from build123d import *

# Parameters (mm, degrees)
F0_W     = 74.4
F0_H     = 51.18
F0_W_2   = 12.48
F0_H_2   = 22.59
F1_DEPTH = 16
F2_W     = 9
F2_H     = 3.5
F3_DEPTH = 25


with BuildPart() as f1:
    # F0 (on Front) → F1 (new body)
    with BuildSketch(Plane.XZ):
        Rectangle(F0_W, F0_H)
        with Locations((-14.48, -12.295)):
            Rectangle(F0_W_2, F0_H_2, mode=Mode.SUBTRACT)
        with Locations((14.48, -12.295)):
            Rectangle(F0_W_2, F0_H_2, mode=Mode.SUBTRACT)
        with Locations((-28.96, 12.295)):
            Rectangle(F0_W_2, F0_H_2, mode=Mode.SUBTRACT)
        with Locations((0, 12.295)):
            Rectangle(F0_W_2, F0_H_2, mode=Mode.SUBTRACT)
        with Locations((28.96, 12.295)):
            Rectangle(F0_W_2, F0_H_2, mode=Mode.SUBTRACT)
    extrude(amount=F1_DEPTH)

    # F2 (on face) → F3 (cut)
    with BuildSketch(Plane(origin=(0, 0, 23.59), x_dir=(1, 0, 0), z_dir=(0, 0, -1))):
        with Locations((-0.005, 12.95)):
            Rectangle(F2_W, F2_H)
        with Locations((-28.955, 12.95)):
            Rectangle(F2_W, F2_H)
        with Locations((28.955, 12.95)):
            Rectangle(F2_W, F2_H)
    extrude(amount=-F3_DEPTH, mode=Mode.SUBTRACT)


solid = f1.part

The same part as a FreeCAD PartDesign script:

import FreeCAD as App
import Part
import Sketcher
from FreeCAD import Vector
Q = App.Units.Quantity


def add_polygon(sketch, points):
    """Adds a closed chain of lines whose ends are joined by coincident constraints."""
    first, n = sketch.GeometryCount, len(points)
    for a, b in zip(points, points[1:] + points[:1]):
        sketch.addGeometry(Part.LineSegment(App.Vector(*a, 0), App.Vector(*b, 0)), False)
    for i in range(n):
        sketch.addConstraint(Sketcher.Constraint("Coincident", first + i, 2, first + (i + 1) % n, 1))

doc = App.newDocument("Part")
body = doc.addObject("PartDesign::Body", "Body")

sketch1 = doc.addObject("Sketcher::SketchObject", "Sketch")
body.addObject(sketch1)
sketch1.AttachmentSupport = (doc.XZ_Plane, [""])
sketch1.MapMode = "FlatFace"
add_polygon(sketch1, [(-37.2, 25.59), (-37.2, -25.59), (37.2, -25.59), (37.2, 25.59)])
add_polygon(sketch1, [(-8.24, -23.59), (-20.72, -23.59), (-20.72, -1), (-8.24, -1)])
add_polygon(sketch1, [(20.72, -23.59), (8.24, -23.59), (8.24, -1), (20.72, -1)])
add_polygon(sketch1, [(-22.72, 1), (-35.2, 1), (-35.2, 23.59), (-22.72, 23.59)])
add_polygon(sketch1, [(6.24, 1), (-6.24, 1), (-6.24, 23.59), (6.24, 23.59)])
add_polygon(sketch1, [(35.2, 1), (22.72, 1), (22.72, 23.59), (35.2, 23.59)])
sketch1.addConstraint(Sketcher.Constraint("Vertical", 0))
sketch1.addConstraint(Sketcher.Constraint("Horizontal", 1))
sketch1.addConstraint(Sketcher.Constraint("Vertical", 2))
sketch1.addConstraint(Sketcher.Constraint("Horizontal", 3))
sketch1.addConstraint(Sketcher.Constraint("Horizontal", 4))
sketch1.addConstraint(Sketcher.Constraint("Vertical", 5))
sketch1.addConstraint(Sketcher.Constraint("Horizontal", 6))
sketch1.addConstraint(Sketcher.Constraint("Vertical", 7))
sketch1.addConstraint(Sketcher.Constraint("Horizontal", 8))
sketch1.addConstraint(Sketcher.Constraint("Vertical", 9))
sketch1.addConstraint(Sketcher.Constraint("Horizontal", 10))
sketch1.addConstraint(Sketcher.Constraint("Vertical", 11))
sketch1.addConstraint(Sketcher.Constraint("Horizontal", 12))
sketch1.addConstraint(Sketcher.Constraint("Vertical", 13))
sketch1.addConstraint(Sketcher.Constraint("Horizontal", 14))
sketch1.addConstraint(Sketcher.Constraint("Vertical", 15))
sketch1.addConstraint(Sketcher.Constraint("Horizontal", 16))
sketch1.addConstraint(Sketcher.Constraint("Vertical", 17))
sketch1.addConstraint(Sketcher.Constraint("Horizontal", 18))
sketch1.addConstraint(Sketcher.Constraint("Vertical", 19))
sketch1.addConstraint(Sketcher.Constraint("Horizontal", 20))
sketch1.addConstraint(Sketcher.Constraint("Vertical", 21))
sketch1.addConstraint(Sketcher.Constraint("Horizontal", 22))
sketch1.addConstraint(Sketcher.Constraint("Vertical", 23))
sketch1.addConstraint(Sketcher.Constraint("Symmetric", 0, 2, 2, 2, -1, 1))
sketch1.addConstraint(Sketcher.Constraint("Symmetric", 7, 2, 8, 2, -2))
sketch1.addConstraint(Sketcher.Constraint("Symmetric", 5, 2, 10, 2, -2))
sketch1.addConstraint(Sketcher.Constraint("Symmetric", 15, 2, 20, 2, -2))
sketch1.addConstraint(Sketcher.Constraint("Symmetric", 13, 2, 22, 2, -2))
sketch1.addConstraint(Sketcher.Constraint("Horizontal", 15, 2, 16, 2))
sketch1.addConstraint(Sketcher.Constraint("Horizontal", 14, 2, 17, 2))
sketch1.addConstraint(Sketcher.Constraint("Equal", 10, 12))
sketch1.addConstraint(Sketcher.Constraint("Equal", 14, 16))
sketch1.addConstraint(Sketcher.Constraint("Equal", 11, 13))
sketch1.addConstraint(Sketcher.Constraint("DistanceX", 1, 1, 1, 2, Q("74.4 mm")))
sketch1.addConstraint(Sketcher.Constraint("DistanceY", 5, 2, -1, 1, Q("1 mm")))
sketch1.addConstraint(Sketcher.Constraint("DistanceY", -1, 1, 12, 2, Q("1 mm")))
sketch1.addConstraint(Sketcher.Constraint("DistanceY", 0, 2, 4, 2, Q("2 mm")))
sketch1.addConstraint(Sketcher.Constraint("DistanceX", 3, 2, 12, 2, Q("2 mm")))
sketch1.addConstraint(Sketcher.Constraint("DistanceX", 14, 2, 5, 2, Q("2 mm")))
sketch1.addConstraint(Sketcher.Constraint("DistanceX", 6, 2, 16, 2, Q("2 mm")))
sketch1.addConstraint(Sketcher.Constraint("DistanceX", 18, 2, 9, 2, Q("2 mm")))
sketch1.addConstraint(Sketcher.Constraint("DistanceY", 0, 2, 0, 1, Q("51.18 mm")))
pad1 = doc.addObject("PartDesign::Pad", "Pad")
body.addObject(pad1)
pad1.Profile = sketch1
pad1.Length = 16

sketch2 = doc.addObject("Sketcher::SketchObject", "Sketch001")
body.addObject(sketch2)
sketch2.AttachmentSupport = (doc.XY_Plane, [""])
sketch2.MapMode = "FlatFace"
sketch2.AttachmentOffset = App.Placement(Vector(0, 0, 23.59), App.Rotation())
add_polygon(sketch2, [(-4.505, -14.7), (-4.505, -11.2), (4.495, -11.2), (4.495, -14.7)])
add_polygon(sketch2, [(-33.455, -14.7), (-33.455, -11.2), (-24.455, -11.2), (-24.455, -14.7)])
add_polygon(sketch2, [(24.455, -14.7), (24.455, -11.2), (33.455, -11.2), (33.455, -14.7)])
sketch2.addConstraint(Sketcher.Constraint("Vertical", 0))
sketch2.addConstraint(Sketcher.Constraint("Horizontal", 1))
sketch2.addConstraint(Sketcher.Constraint("Vertical", 2))
sketch2.addConstraint(Sketcher.Constraint("Horizontal", 3))
sketch2.addConstraint(Sketcher.Constraint("Vertical", 4))
sketch2.addConstraint(Sketcher.Constraint("Horizontal", 5))
sketch2.addConstraint(Sketcher.Constraint("Vertical", 6))
sketch2.addConstraint(Sketcher.Constraint("Horizontal", 7))
sketch2.addConstraint(Sketcher.Constraint("Vertical", 8))
sketch2.addConstraint(Sketcher.Constraint("Horizontal", 9))
sketch2.addConstraint(Sketcher.Constraint("Vertical", 10))
sketch2.addConstraint(Sketcher.Constraint("Horizontal", 11))
sketch2.addConstraint(Sketcher.Constraint("Symmetric", 5, 2, 8, 2, -2))
sketch2.addConstraint(Sketcher.Constraint("Symmetric", 7, 2, 10, 2, -2))
sketch2.addConstraint(Sketcher.Constraint("Horizontal", 1, 2, 4, 2))
sketch2.addConstraint(Sketcher.Constraint("Horizontal", 3, 2, 6, 2))
sketch2.addConstraint(Sketcher.Constraint("Equal", 3, 5))
sketch2.addConstraint(Sketcher.Constraint("DistanceX", 1, 1, 1, 2, Q("9 mm")))
sketch2.addConstraint(Sketcher.Constraint("DistanceY", 0, 1, 0, 2, Q("3.5 mm")))
sketch2.addConstraint(Sketcher.Constraint("DistanceY", 0, 2, -1, 1, Q("11.2 mm")))
sketch2.addConstraint(Sketcher.Constraint("DistanceX", 4, 2, 0, 2, Q("28.95 mm")))
sketch2.addConstraint(Sketcher.Constraint("DistanceX", 1, 2, 8, 2, Q("19.96 mm")))
pocket1 = doc.addObject("PartDesign::Pocket", "Pocket")
body.addObject(pocket1)
pocket1.Profile = sketch2
pocket1.Length = 25
pocket1.Reversed = True

doc.recompute()
